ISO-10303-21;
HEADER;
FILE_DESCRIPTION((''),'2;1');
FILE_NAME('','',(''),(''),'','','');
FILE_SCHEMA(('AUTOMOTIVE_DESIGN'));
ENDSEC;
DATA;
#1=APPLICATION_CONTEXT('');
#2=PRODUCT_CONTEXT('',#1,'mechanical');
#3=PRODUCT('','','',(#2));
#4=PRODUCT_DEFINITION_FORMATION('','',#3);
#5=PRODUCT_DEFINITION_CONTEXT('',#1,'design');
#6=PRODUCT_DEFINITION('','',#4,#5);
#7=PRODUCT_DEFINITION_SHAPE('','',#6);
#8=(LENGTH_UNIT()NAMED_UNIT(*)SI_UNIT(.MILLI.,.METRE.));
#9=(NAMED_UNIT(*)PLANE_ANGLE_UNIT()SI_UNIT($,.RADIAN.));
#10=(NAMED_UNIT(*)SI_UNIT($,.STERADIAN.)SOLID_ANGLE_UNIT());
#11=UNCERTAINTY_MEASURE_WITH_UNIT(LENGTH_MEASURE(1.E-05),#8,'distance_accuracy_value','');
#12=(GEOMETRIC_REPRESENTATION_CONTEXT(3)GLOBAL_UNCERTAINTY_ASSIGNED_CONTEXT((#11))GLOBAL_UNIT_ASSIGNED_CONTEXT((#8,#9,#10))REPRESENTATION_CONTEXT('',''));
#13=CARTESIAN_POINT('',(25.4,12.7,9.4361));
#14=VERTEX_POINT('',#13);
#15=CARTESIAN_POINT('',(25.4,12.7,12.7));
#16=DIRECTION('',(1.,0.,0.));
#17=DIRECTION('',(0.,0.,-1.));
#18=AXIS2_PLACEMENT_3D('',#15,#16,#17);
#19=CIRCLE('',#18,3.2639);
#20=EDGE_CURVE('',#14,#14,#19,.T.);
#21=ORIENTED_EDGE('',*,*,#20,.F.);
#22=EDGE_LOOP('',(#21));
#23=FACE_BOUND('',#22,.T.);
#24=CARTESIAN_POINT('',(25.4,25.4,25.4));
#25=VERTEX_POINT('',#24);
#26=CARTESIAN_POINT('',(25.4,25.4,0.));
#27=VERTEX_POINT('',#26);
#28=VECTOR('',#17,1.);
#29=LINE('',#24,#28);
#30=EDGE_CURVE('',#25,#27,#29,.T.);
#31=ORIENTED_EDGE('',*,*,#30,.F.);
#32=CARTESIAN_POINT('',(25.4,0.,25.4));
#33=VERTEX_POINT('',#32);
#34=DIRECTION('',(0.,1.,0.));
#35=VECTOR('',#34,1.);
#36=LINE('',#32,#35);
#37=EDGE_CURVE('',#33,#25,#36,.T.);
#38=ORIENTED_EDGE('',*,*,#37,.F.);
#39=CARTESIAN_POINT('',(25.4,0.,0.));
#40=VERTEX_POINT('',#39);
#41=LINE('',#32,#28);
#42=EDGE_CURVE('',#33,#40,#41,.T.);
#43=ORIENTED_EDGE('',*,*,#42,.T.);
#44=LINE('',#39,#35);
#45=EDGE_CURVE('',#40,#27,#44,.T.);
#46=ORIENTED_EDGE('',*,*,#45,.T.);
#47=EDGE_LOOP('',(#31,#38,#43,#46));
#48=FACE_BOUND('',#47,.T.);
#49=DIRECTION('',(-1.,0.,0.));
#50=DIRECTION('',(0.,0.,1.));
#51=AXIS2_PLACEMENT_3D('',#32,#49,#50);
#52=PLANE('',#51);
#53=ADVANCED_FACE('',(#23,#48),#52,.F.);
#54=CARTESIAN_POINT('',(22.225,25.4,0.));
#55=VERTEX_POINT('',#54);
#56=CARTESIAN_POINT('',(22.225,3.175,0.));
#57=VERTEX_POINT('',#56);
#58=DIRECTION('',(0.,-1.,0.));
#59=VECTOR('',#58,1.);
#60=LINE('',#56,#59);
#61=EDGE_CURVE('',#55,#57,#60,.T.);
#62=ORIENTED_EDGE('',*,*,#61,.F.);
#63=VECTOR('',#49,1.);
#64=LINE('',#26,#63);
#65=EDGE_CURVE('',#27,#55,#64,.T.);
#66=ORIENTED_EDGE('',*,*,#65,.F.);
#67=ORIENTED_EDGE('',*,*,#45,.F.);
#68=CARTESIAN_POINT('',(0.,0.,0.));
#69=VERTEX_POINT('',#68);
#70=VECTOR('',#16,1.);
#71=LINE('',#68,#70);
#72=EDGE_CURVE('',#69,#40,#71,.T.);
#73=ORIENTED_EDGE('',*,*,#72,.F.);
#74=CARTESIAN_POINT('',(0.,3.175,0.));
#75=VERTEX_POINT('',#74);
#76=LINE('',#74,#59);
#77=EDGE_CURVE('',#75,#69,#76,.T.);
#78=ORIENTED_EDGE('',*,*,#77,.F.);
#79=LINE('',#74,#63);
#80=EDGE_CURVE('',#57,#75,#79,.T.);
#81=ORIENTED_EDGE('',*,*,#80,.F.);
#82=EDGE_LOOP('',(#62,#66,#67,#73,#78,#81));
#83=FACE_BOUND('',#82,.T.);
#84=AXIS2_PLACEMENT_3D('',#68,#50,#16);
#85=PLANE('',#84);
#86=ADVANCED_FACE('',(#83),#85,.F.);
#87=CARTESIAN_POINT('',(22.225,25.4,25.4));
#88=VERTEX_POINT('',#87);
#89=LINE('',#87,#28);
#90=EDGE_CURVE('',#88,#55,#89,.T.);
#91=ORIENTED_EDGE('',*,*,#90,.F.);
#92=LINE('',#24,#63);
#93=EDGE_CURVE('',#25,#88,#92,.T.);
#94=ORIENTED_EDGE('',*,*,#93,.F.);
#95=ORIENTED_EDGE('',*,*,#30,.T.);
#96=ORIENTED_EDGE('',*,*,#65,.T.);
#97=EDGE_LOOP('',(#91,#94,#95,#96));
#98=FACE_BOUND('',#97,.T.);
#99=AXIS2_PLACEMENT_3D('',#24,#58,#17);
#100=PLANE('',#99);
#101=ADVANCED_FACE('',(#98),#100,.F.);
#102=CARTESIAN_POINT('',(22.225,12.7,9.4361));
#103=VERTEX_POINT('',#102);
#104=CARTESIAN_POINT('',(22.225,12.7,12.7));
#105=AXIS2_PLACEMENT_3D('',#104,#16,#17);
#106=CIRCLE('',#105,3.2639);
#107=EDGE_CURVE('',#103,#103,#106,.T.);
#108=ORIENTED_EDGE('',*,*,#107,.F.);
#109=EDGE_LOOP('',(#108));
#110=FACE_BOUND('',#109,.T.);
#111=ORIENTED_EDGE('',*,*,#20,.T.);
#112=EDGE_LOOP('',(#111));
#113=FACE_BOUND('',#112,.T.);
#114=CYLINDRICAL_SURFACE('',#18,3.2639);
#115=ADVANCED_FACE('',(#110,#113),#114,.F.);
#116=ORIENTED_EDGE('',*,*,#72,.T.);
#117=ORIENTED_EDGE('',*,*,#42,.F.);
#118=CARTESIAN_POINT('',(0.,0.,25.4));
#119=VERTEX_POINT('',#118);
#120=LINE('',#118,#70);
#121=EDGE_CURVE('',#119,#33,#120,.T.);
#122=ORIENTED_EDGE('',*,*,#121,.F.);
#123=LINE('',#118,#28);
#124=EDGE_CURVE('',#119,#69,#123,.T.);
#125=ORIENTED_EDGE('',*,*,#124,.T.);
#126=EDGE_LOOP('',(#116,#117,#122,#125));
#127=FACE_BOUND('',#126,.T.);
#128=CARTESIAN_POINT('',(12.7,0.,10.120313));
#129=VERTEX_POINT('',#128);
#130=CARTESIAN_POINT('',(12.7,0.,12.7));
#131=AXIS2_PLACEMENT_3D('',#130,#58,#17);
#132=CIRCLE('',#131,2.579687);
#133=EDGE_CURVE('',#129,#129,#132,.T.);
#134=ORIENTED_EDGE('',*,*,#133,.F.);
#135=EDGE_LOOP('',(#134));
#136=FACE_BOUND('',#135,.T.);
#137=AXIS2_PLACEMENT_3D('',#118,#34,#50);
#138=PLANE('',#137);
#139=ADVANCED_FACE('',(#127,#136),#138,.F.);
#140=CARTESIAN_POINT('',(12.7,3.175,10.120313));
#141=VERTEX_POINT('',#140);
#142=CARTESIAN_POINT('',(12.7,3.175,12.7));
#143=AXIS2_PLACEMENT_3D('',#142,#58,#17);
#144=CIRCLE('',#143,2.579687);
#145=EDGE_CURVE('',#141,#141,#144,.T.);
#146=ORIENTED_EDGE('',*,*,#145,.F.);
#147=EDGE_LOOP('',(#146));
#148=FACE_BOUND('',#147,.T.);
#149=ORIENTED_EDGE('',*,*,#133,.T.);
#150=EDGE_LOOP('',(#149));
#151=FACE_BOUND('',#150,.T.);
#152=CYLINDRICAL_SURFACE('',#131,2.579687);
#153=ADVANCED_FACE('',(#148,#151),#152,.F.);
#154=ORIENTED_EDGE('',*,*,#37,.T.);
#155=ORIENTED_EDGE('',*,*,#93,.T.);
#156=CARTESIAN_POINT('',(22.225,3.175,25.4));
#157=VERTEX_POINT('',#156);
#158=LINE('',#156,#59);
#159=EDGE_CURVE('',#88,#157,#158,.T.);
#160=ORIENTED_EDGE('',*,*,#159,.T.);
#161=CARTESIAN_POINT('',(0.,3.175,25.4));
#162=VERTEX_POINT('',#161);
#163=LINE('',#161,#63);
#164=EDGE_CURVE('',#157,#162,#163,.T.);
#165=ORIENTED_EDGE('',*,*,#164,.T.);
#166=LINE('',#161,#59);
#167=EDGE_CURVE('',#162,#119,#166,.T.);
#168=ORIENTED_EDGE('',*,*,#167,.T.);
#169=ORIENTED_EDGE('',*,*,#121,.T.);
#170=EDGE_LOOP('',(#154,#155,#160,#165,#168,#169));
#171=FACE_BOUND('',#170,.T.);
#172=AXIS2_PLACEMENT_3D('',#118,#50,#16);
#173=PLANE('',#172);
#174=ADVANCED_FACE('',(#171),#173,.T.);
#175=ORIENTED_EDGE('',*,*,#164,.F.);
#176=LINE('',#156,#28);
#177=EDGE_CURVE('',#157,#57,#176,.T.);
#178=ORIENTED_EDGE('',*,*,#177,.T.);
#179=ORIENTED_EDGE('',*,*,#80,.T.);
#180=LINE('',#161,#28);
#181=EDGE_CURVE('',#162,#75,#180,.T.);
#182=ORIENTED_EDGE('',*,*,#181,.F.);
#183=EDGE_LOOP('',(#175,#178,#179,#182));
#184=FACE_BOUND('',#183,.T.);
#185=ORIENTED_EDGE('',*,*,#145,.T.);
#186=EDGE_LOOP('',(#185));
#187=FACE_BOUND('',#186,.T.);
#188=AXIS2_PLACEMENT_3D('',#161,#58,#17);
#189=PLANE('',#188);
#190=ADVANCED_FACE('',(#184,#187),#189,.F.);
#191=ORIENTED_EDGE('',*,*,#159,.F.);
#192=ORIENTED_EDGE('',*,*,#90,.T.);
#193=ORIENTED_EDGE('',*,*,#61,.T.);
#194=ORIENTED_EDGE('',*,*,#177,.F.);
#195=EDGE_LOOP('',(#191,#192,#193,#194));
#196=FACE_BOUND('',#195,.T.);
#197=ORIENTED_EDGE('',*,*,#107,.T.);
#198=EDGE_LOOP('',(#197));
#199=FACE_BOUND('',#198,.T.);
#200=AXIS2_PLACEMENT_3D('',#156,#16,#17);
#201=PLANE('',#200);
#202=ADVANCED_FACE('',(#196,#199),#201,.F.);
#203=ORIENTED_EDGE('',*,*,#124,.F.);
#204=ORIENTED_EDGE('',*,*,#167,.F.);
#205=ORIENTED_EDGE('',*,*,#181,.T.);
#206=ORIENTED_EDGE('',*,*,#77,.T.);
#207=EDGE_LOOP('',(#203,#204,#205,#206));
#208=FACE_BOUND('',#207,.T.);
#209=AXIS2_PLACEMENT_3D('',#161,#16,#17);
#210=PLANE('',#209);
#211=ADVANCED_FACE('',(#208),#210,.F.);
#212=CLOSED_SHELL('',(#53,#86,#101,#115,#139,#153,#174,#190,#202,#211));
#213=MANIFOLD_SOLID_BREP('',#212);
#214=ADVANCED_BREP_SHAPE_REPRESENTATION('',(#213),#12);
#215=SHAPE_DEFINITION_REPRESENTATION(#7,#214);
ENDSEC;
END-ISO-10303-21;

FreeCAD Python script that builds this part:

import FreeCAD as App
import Part
import Sketcher
Q = App.Units.Quantity

doc = App.newDocument("Part")
body = doc.addObject("PartDesign::Body", "Body")

sketch1 = body.newObject("Sketcher::SketchObject", "Sketch")
sketch1.AttachmentSupport = (doc.getObject("XY_Plane"), [""])
sketch1.MapMode = "FlatFace"
sketch1.addGeometry([
    Part.LineSegment(App.Vector(22.225, 3.175, 0), App.Vector(0, 3.175, 0)),
    Part.LineSegment(App.Vector(0, 3.175, 0), App.Vector(0, 0, 0)),
    Part.LineSegment(App.Vector(0, 0, 0), App.Vector(25.4, 0, 0)),
    Part.LineSegment(App.Vector(25.4, 0, 0), App.Vector(25.4, 25.4, 0)),
    Part.LineSegment(App.Vector(25.4, 25.4, 0), App.Vector(22.225, 25.4, 0)),
    Part.LineSegment(App.Vector(22.225, 25.4, 0), App.Vector(22.225, 3.175, 0)),
], False)
sketch1.addConstraint([
    Sketcher.Constraint("Coincident", 0, 2, 1, 1),
    Sketcher.Constraint("Coincident", 1, 2, 2, 1),
    Sketcher.Constraint("Coincident", 2, 2, 3, 1),
    Sketcher.Constraint("Coincident", 3, 2, 4, 1),
    Sketcher.Constraint("Coincident", 4, 2, 5, 1),
    Sketcher.Constraint("Coincident", 5, 2, 0, 1),
    Sketcher.Constraint("Horizontal", 0),
    Sketcher.Constraint("Vertical", 1),
    Sketcher.Constraint("Horizontal", 2),
    Sketcher.Constraint("Vertical", 3),
    Sketcher.Constraint("Horizontal", 4),
    Sketcher.Constraint("Vertical", 5),
    Sketcher.Constraint("Coincident", 1, 2, -1, 1),
    Sketcher.Constraint("Equal", 4, 1),
    Sketcher.Constraint("Equal", 2, 3),
    Sketcher.Constraint("DistanceX", 2, 1, 2, 2, Q("1 in")),
    Sketcher.Constraint("DistanceX", 0, 2, 0, 1, Q("0.875 in")),
])
pad1 = body.newObject("PartDesign::Pad", "Pad")
pad1.Profile = sketch1
pad1.Length = Q("1 in")

sketch2 = body.newObject("Sketcher::SketchObject", "Sketch001")
sketch2.AttachmentSupport = (doc.getObject("XZ_Plane"), [""])
sketch2.MapMode = "FlatFace"
sketch2.addGeometry(Part.Circle(App.Vector(12.7, 12.7, 0), App.Vector(0, 0, 1), 2.579687), False)
sketch2.addConstraint([
    Sketcher.Constraint("Diameter", 0, Q("0.203125 in")),
    Sketcher.Constraint("DistanceX", -1, 1, 0, 3, Q("0.5 in")),
    Sketcher.Constraint("DistanceY", -1, 1, 0, 3, Q("0.5 in")),
])
doc.recompute()
hole = body.newObject("PartDesign::Hole", "Hole")
hole.Profile = sketch2
hole.ThreadType = "None"
hole.Diameter = Q("0.203125 in")
hole.DepthType = "ThroughAll"

sketch3 = body.newObject("Sketcher::SketchObject", "Sketch002")
sketch3.AttachmentSupport = (doc.getObject("YZ_Plane"), [""])
sketch3.MapMode = "FlatFace"
sketch3.AttachmentOffset = App.Placement(App.Vector(0, 0, 1 * 25.4), App.Rotation())
sketch3.addGeometry(Part.Circle(App.Vector(12.7, 12.7, 0), App.Vector(0, 0, 1), 3.2639), False)
sketch3.addConstraint([
    Sketcher.Constraint("Diameter", 0, Q("0.257 in")),
    Sketcher.Constraint("DistanceX", -1, 1, 0, 3, Q("0.5 in")),
    Sketcher.Constraint("DistanceY", -1, 1, 0, 3, Q("0.5 in")),
])
doc.recompute()
hole2 = body.newObject("PartDesign::Hole", "Hole001")
hole2.Profile = sketch3
hole2.ThreadType = "None"
hole2.Diameter = Q("0.257 in")
hole2.DepthType = "ThroughAll"

doc.recompute()
